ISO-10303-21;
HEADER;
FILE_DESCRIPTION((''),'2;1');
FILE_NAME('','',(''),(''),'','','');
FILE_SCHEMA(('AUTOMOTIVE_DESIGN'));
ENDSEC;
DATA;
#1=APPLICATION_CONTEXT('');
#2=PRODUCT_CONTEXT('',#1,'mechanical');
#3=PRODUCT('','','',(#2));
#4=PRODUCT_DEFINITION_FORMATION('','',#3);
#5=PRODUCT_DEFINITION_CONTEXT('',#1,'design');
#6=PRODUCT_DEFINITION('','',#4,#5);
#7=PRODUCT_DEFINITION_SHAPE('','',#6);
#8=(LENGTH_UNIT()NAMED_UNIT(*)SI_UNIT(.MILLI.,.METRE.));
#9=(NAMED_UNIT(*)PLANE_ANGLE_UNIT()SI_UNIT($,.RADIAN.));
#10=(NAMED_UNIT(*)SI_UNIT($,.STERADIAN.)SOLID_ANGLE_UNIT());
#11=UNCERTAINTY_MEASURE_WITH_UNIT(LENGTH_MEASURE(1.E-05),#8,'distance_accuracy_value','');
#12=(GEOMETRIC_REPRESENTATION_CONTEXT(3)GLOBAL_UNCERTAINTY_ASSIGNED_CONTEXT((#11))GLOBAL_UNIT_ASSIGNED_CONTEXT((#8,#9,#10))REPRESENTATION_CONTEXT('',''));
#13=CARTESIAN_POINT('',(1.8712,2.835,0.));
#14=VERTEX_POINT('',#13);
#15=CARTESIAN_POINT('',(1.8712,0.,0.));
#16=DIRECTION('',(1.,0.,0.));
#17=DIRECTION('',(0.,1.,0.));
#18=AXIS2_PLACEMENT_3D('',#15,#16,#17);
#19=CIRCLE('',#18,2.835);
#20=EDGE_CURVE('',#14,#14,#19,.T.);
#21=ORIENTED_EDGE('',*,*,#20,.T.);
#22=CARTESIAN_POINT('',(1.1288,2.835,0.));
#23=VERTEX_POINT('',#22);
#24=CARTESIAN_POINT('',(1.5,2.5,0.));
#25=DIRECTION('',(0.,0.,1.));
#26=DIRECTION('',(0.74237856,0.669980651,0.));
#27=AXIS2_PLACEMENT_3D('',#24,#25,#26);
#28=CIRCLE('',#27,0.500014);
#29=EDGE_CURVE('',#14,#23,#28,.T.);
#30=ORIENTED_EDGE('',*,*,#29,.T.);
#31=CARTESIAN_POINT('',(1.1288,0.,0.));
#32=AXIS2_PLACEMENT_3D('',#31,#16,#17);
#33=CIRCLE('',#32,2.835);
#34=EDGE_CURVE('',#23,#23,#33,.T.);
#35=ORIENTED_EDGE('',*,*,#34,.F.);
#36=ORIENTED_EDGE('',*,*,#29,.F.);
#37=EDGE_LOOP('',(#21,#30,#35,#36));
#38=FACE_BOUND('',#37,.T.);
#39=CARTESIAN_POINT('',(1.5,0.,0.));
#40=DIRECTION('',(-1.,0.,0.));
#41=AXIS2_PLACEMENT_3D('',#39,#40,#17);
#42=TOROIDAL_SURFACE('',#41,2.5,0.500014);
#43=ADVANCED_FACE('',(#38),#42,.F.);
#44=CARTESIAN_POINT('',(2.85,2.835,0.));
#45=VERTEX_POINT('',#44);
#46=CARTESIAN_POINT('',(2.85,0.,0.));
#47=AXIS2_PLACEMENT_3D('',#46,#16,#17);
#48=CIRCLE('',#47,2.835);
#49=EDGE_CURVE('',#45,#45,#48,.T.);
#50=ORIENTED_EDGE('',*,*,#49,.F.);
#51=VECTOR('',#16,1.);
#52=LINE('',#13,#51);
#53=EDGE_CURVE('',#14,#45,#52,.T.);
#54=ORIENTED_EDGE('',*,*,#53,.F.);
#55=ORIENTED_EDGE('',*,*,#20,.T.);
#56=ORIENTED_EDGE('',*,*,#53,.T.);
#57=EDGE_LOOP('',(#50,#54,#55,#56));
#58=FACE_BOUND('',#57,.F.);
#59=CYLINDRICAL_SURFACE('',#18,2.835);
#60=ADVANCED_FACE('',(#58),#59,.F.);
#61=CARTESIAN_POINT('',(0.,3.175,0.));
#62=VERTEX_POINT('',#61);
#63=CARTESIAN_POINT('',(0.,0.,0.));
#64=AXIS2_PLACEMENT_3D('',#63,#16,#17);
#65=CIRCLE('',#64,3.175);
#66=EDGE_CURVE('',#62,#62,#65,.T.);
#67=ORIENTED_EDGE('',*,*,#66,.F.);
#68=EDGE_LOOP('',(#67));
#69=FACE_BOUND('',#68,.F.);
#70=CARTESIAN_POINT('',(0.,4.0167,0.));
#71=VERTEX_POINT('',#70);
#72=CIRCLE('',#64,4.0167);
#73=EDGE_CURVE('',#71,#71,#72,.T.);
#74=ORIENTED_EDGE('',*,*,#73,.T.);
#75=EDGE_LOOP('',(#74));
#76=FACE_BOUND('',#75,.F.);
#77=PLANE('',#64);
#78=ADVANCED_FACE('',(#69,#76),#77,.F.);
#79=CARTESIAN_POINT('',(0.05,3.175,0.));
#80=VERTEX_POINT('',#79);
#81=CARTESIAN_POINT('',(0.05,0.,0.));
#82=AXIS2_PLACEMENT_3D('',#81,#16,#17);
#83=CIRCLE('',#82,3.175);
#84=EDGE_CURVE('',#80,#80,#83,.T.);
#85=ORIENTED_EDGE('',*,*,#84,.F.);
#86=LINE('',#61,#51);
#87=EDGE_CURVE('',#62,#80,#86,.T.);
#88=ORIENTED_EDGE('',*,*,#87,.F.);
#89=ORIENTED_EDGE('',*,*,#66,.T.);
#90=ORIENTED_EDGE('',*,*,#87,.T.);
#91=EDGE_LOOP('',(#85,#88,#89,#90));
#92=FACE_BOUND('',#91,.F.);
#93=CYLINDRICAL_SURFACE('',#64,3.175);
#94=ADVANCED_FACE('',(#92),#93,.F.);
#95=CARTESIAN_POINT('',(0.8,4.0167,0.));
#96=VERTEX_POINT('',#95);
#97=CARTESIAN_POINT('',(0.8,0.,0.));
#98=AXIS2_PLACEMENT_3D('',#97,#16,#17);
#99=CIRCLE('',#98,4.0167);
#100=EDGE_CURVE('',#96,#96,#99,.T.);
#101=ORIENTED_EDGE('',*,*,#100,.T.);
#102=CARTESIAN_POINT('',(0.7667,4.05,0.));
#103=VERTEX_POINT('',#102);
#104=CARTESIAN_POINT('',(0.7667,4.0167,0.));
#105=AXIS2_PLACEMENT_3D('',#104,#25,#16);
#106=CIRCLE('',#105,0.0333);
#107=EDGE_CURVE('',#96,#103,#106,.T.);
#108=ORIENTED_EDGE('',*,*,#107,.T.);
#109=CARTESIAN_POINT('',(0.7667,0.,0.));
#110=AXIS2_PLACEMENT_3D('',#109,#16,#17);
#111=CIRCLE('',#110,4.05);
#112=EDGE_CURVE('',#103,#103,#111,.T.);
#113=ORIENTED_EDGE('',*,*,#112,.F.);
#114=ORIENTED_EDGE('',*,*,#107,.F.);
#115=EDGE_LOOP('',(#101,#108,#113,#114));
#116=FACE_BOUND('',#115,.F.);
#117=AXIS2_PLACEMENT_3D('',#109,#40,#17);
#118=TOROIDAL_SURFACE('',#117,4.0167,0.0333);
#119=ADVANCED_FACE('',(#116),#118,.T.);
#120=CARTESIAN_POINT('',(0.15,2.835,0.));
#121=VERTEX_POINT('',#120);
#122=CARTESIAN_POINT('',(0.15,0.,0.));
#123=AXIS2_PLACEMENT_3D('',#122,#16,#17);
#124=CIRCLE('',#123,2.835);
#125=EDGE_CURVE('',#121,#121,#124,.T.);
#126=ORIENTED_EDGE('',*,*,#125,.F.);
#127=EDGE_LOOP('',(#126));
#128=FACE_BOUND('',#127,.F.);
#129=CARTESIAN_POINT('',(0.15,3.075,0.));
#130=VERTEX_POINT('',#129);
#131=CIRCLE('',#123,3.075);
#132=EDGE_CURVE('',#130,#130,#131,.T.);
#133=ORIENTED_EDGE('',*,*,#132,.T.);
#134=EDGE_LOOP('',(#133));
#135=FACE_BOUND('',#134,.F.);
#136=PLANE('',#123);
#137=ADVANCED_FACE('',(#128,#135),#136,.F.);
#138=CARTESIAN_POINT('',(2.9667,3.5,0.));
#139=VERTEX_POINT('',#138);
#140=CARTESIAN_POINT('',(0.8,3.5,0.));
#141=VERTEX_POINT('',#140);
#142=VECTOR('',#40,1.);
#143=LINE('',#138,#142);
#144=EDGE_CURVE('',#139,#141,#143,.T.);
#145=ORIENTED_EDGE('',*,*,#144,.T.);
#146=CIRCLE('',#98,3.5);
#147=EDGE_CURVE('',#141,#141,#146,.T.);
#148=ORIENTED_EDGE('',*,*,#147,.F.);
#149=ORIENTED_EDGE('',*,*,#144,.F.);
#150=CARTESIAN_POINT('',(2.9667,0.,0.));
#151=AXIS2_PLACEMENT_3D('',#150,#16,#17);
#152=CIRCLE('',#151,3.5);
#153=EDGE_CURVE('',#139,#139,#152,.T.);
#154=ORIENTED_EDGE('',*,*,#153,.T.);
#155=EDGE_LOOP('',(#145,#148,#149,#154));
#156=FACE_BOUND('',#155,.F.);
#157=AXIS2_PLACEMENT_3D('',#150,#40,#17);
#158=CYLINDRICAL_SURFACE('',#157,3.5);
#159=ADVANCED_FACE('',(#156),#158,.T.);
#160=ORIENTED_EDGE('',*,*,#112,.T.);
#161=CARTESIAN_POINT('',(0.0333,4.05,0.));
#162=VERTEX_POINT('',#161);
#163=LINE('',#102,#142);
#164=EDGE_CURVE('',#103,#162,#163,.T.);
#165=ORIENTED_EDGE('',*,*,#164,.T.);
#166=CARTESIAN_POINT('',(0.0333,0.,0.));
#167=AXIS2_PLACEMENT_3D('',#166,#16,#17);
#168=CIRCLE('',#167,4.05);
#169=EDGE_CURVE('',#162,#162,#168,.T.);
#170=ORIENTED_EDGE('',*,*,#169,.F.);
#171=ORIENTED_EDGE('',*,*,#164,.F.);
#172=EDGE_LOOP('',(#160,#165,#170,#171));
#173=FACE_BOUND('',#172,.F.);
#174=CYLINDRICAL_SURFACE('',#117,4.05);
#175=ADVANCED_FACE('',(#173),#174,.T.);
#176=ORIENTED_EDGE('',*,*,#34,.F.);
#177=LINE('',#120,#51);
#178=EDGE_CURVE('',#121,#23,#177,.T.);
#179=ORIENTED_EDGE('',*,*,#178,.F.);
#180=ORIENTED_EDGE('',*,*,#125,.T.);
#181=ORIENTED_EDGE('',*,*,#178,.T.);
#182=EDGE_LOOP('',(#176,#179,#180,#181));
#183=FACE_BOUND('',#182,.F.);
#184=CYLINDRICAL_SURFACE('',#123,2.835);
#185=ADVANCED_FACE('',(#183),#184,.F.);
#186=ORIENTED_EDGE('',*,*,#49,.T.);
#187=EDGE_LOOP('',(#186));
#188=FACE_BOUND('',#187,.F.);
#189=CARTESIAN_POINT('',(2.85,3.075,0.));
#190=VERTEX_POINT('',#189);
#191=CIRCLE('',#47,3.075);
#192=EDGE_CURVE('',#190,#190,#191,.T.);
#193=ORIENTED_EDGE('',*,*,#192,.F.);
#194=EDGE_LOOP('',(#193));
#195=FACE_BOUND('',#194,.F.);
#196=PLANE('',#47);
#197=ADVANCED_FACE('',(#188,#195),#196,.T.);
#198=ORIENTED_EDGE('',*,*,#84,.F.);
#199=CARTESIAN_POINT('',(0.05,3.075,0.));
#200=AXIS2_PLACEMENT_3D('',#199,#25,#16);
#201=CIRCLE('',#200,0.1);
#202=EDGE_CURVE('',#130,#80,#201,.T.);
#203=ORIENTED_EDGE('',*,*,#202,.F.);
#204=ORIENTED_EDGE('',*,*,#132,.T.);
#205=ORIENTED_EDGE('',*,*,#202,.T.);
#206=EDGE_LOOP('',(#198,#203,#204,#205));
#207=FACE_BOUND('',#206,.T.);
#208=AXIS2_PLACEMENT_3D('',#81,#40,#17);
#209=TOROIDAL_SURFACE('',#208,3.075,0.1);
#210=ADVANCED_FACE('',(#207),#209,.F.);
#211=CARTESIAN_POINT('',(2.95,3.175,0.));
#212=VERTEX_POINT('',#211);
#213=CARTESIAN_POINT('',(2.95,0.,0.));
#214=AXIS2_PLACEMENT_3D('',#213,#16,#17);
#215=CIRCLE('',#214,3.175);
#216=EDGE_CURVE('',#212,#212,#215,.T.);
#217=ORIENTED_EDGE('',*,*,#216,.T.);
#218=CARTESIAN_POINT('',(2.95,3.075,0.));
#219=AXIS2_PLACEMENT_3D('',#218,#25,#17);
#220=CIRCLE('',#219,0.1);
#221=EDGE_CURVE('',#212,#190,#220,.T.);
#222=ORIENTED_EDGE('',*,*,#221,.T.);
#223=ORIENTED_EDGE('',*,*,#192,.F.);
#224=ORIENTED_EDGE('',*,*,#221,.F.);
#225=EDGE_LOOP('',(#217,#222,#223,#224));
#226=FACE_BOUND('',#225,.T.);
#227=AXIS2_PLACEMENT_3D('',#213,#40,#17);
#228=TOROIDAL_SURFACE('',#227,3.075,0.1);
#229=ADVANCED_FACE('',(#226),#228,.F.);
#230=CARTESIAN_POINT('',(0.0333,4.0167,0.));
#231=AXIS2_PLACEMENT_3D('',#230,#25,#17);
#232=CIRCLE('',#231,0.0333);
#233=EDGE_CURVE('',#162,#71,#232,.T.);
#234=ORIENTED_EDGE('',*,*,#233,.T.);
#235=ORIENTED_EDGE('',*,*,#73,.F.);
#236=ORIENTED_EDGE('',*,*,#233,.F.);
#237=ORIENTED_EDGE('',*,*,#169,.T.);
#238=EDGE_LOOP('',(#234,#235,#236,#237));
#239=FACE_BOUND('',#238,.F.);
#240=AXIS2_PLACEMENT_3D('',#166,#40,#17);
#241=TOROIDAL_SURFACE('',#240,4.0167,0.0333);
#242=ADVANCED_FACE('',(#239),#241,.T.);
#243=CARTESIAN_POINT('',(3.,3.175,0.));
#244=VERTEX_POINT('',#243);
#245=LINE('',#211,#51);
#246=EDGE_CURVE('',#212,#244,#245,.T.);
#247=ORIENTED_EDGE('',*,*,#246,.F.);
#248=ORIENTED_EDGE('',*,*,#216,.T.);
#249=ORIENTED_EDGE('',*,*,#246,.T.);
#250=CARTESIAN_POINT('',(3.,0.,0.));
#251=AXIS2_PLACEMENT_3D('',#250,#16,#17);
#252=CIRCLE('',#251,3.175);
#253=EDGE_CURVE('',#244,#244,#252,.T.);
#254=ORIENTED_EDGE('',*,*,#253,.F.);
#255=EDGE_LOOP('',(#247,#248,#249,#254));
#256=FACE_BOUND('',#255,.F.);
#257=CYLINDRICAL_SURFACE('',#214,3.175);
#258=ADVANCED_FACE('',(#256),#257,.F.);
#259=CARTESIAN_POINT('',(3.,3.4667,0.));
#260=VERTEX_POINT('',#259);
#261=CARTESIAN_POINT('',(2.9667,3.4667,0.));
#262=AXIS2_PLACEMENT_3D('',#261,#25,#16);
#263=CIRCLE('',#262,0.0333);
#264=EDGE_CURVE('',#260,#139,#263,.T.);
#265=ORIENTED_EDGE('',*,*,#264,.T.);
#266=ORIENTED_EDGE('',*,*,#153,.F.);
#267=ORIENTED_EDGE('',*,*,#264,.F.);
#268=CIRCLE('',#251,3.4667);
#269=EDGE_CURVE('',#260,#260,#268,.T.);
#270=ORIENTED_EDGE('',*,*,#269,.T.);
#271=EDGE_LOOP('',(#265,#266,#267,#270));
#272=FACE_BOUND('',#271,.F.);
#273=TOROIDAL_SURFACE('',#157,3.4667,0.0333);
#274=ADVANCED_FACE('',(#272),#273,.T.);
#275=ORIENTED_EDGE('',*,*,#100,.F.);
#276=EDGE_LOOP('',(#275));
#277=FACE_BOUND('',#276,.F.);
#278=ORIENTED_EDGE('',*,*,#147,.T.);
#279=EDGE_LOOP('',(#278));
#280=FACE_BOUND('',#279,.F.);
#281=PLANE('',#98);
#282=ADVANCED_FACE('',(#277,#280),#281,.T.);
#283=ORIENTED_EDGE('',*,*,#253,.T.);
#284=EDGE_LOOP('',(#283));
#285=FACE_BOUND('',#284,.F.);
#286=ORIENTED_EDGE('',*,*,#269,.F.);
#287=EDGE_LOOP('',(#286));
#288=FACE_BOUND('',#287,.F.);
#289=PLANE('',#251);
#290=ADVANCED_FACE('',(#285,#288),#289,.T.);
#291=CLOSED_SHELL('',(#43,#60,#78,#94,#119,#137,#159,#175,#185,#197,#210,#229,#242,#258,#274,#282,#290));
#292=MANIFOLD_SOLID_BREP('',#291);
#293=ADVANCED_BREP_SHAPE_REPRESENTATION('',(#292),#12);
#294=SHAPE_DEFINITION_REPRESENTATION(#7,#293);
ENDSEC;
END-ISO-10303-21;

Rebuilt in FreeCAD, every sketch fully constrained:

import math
import FreeCAD as App
import Part
import Sketcher

doc = App.newDocument("Part")
body = doc.addObject("PartDesign::Body", "Body")

sketch1 = doc.addObject("Sketcher::SketchObject", "Sketch")
body.addObject(sketch1)
sketch1.AttachmentSupport = (doc.XY_Plane, [""])
sketch1.MapMode = "FlatFace"
sketch1.addGeometry([
    Part.ArcOfCircle(Part.Circle(App.Vector(0.0333, 4.0167, 0), App.Vector(0, 0, 1), 0.0333), math.radians(90), math.radians(180)),
    Part.LineSegment(App.Vector(0, 4.0167, 0), App.Vector(0, 3.175, 0)),
    Part.LineSegment(App.Vector(0, 3.175, 0), App.Vector(0.05, 3.175, 0)),
    Part.ArcOfCircle(Part.Circle(App.Vector(0.05, 3.075, 0), App.Vector(0, 0, 1), 0.1), math.radians(0), math.radians(90)),
    Part.LineSegment(App.Vector(0.15, 3.075, 0), App.Vector(0.15, 2.835, 0)),
    Part.LineSegment(App.Vector(0.15, 2.835, 0), App.Vector(1.1288, 2.835, 0)),
    Part.ArcOfCircle(Part.Circle(App.Vector(1.5, 2.5, 0), App.Vector(0, 0, 1), 0.500014), math.radians(42.065571), math.radians(137.934429)),
    Part.LineSegment(App.Vector(1.8712, 2.835, 0), App.Vector(2.85, 2.835, 0)),
    Part.LineSegment(App.Vector(2.85, 2.835, 0), App.Vector(2.85, 3.075, 0)),
    Part.ArcOfCircle(Part.Circle(App.Vector(2.95, 3.075, 0), App.Vector(0, 0, 1), 0.1), math.radians(90), math.radians(180)),
    Part.LineSegment(App.Vector(2.95, 3.175, 0), App.Vector(3, 3.175, 0)),
    Part.LineSegment(App.Vector(3, 3.175, 0), App.Vector(3, 3.4667, 0)),
    Part.ArcOfCircle(Part.Circle(App.Vector(2.9667, 3.4667, 0), App.Vector(0, 0, 1), 0.0333), math.radians(0), math.radians(90)),
    Part.LineSegment(App.Vector(2.9667, 3.5, 0), App.Vector(0.8, 3.5, 0)),
    Part.LineSegment(App.Vector(0.8, 3.5, 0), App.Vector(0.8, 4.0167, 0)),
    Part.ArcOfCircle(Part.Circle(App.Vector(0.7667, 4.0167, 0), App.Vector(0, 0, 1), 0.0333), math.radians(0), math.radians(90)),
    Part.LineSegment(App.Vector(0.7667, 4.05, 0), App.Vector(0.0333, 4.05, 0)),
], False)
sketch1.addConstraint([
    Sketcher.Constraint("Tangent", 0, 2, 1, 1),
    Sketcher.Constraint("Coincident", 1, 2, 2, 1),
    Sketcher.Constraint("Tangent", 2, 2, 3, 2),
    Sketcher.Constraint("Tangent", 3, 1, 4, 1),
    Sketcher.Constraint("Coincident", 4, 2, 5, 1),
    Sketcher.Constraint("Coincident", 5, 2, 6, 2),
    Sketcher.Constraint("Coincident", 6, 1, 7, 1),
    Sketcher.Constraint("Coincident", 7, 2, 8, 1),
    Sketcher.Constraint("Tangent", 8, 2, 9, 2),
    Sketcher.Constraint("Tangent", 9, 1, 10, 1),
    Sketcher.Constraint("Coincident", 10, 2, 11, 1),
    Sketcher.Constraint("Tangent", 11, 2, 12, 1),
    Sketcher.Constraint("Tangent", 12, 2, 13, 1),
    Sketcher.Constraint("Coincident", 13, 2, 14, 1),
    Sketcher.Constraint("Tangent", 14, 2, 15, 1),
    Sketcher.Constraint("Tangent", 15, 2, 16, 1),
    Sketcher.Constraint("Tangent", 16, 2, 0, 1),
    Sketcher.Constraint("Vertical", 1),
    Sketcher.Constraint("Horizontal", 2),
    Sketcher.Constraint("Vertical", 4),
    Sketcher.Constraint("Horizontal", 5),
    Sketcher.Constraint("Horizontal", 7),
    Sketcher.Constraint("Vertical", 8),
    Sketcher.Constraint("Horizontal", 10),
    Sketcher.Constraint("Vertical", 11),
    Sketcher.Constraint("Horizontal", 13),
    Sketcher.Constraint("Vertical", 14),
    Sketcher.Constraint("Horizontal", 16),
    Sketcher.Constraint("Equal", 3, 9),
    Sketcher.Constraint("Equal", 0, 12),
    Sketcher.Constraint("Equal", 12, 15),
    Sketcher.Constraint("PointOnObject", 0, 2, -2),
    Sketcher.Constraint("Horizontal", 3, 3, 9, 3),
    Sketcher.Constraint("Horizontal", 5, 2, 6, 1),
    Sketcher.Constraint("Equal", 5, 7),
    Sketcher.Constraint("Equal", 2, 10),
    Sketcher.Constraint("Radius", 3, 0.1),
    Sketcher.Constraint("Radius", 6, 0.5),
    Sketcher.Constraint("DistanceX", -1, 1, 10, 2, 3.0),
    Sketcher.Constraint("DistanceX", 2, 1, 2, 2, 0.05),
    Sketcher.Constraint("DistanceY", 4, 2, 4, 1, 0.24),
    Sketcher.Constraint("DistanceY", -1, 1, 6, 3, 2.5),
    Sketcher.Constraint("DistanceY", -1, 1, 12, 2, 3.5),
    Sketcher.Constraint("DistanceX", -1, 1, 13, 2, 0.8),
    Sketcher.Constraint("Radius", 0, 0.0333),
    Sketcher.Constraint("DistanceY", -1, 1, 15, 2, 4.05),
    Sketcher.Constraint("DistanceX", 5, 1, 5, 2, 0.9788),
])
revolution = doc.addObject("PartDesign::Revolution", "Revolution")
body.addObject(revolution)
revolution.Profile = sketch1
revolution.ReferenceAxis = (sketch1, ["H_Axis"])
revolution.Angle = 360

doc.recompute()
